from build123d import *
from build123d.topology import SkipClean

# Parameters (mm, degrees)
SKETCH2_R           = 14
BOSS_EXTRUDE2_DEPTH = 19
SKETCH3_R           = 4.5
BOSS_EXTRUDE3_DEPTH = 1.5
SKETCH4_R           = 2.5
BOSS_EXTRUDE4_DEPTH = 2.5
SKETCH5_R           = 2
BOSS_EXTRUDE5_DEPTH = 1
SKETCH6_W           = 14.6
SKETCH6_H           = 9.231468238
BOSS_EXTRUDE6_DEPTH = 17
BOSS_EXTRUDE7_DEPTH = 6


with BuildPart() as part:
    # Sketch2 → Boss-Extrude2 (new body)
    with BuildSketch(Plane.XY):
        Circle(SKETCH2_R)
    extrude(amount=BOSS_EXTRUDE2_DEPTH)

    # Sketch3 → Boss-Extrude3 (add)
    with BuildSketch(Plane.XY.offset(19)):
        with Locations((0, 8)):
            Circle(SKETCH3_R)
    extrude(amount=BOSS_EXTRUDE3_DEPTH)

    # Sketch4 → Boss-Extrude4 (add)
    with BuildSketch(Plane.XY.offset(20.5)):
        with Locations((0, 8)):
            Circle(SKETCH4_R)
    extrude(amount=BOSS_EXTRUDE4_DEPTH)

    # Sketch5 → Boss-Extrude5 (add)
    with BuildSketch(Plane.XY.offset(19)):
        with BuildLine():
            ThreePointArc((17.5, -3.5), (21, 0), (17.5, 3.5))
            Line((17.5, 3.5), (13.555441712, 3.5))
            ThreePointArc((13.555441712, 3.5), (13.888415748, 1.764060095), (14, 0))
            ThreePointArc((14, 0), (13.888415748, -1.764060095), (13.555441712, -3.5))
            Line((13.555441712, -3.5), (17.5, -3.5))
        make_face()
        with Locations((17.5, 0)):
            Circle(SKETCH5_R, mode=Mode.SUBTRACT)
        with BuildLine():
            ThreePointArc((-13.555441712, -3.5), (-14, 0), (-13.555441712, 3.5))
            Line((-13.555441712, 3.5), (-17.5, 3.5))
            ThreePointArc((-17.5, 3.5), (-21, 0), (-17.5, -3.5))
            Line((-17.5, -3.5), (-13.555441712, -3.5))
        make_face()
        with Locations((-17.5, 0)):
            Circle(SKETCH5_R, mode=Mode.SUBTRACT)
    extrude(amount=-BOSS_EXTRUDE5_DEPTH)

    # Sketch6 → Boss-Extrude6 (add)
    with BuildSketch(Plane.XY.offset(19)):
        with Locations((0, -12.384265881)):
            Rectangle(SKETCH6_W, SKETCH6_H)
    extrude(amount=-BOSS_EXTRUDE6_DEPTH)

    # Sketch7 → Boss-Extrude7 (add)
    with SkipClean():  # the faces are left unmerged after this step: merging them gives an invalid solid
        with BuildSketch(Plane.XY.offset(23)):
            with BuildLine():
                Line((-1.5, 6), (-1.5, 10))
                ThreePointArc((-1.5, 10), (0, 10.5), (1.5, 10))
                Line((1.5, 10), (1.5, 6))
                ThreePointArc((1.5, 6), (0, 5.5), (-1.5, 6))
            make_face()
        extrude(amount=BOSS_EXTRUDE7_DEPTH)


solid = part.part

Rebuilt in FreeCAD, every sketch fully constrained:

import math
import FreeCAD as App
import Part
import Sketcher
from FreeCAD import Vector


def add_polygon(sketch, points):
    """Adds a closed chain of lines whose ends are joined by coincident constraints."""
    first, n = sketch.GeometryCount, len(points)
    for a, b in zip(points, points[1:] + points[:1]):
        sketch.addGeometry(Part.LineSegment(App.Vector(*a, 0), App.Vector(*b, 0)), False)
    for i in range(n):
        sketch.addConstraint(Sketcher.Constraint("Coincident", first + i, 2, first + (i + 1) % n, 1))

doc = App.newDocument("Part")
params = doc.addObject("Spreadsheet::Sheet", "Params")
for row, (alias, value) in enumerate([
    ("sketch1_diameter", "28 mm"),
    ("pad1_length", "19 mm"),
    ("sketch2_diameter", "9 mm"),
    ("pad2_length", "1.5 mm"),
    ("sketch3_diameter", "5 mm"),
    ("pad3_length", "2.5 mm"),
    ("sketch4_diameter", "4 mm"),
    ("sketch4_radius", "14 mm"),
    ("sketch4_radius2", "3.5 mm"),
    ("pad4_length", "1 mm"),
    ("sketch5_width", "14.6 mm"),
    ("pad5_length", "17 mm"),
    ("sketch6_radius", "2.5 mm"),
    ("sketch6_height", "4 mm"),
    ("pad6_length", "6 mm"),
], start=1):
    params.set(f"A{row}", alias)
    params.set(f"B{row}", "=" + value)
    params.setAlias(f"B{row}", alias)

body = doc.addObject("PartDesign::Body", "Body")

# Sketch on XY plane
sketch1 = body.newObject("Sketcher::SketchObject", "Sketch")
sketch1.AttachmentSupport = (doc.getObject("XY_Plane"), [""])
sketch1.MapMode = "FlatFace"
sketch1.addGeometry(Part.Circle(Vector(0, 0, 0), Vector(0, 0, 1), 14), False)
sketch1.addConstraint([
    Sketcher.Constraint("Coincident", 0, 3, -1, 1),
    Sketcher.Constraint("Diameter", 0, 28.0),
])
sketch1.setExpression("Constraints[1]", "Params.sketch1_diameter")
pad1 = body.newObject("PartDesign::Pad", "Pad")
pad1.Profile = sketch1
pad1.setExpression("Length", "Params.pad1_length")

# Sketch on XY plane
sketch2 = body.newObject("Sketcher::SketchObject", "Sketch001")
sketch2.AttachmentSupport = (doc.getObject("XY_Plane"), [""])
sketch2.MapMode = "FlatFace"
sketch2.AttachmentOffset = App.Placement(Vector(0, 0, 19), App.Rotation())
sketch2.addGeometry(Part.Circle(Vector(0, 8, 0), Vector(0, 0, 1), 4.5), False)
sketch2.addConstraint([
    Sketcher.Constraint("PointOnObject", 0, 3, -2),
    Sketcher.Constraint("Diameter", 0, 9.0),
    Sketcher.Constraint("DistanceY", -1, 1, 0, 3, 8.0),
])
sketch2.setExpression("Constraints[1]", "Params.sketch2_diameter")
pad2 = body.newObject("PartDesign::Pad", "Pad001")
pad2.Profile = sketch2
pad2.setExpression("Length", "Params.pad2_length")

# Sketch on XY plane
sketch3 = body.newObject("Sketcher::SketchObject", "Sketch002")
sketch3.AttachmentSupport = (doc.getObject("XY_Plane"), [""])
sketch3.MapMode = "FlatFace"
sketch3.AttachmentOffset = App.Placement(Vector(0, 0, 20.5), App.Rotation())
sketch3.addGeometry(Part.Circle(Vector(0, 8, 0), Vector(0, 0, 1), 2.5), False)
sketch3.addConstraint([
    Sketcher.Constraint("PointOnObject", 0, 3, -2),
    Sketcher.Constraint("Diameter", 0, 5.0),
    Sketcher.Constraint("DistanceY", -1, 1, 0, 3, 8.0),
])
sketch3.setExpression("Constraints[1]", "Params.sketch3_diameter")
pad3 = body.newObject("PartDesign::Pad", "Pad002")
pad3.Profile = sketch3
pad3.setExpression("Length", "Params.pad3_length")

# Sketch on XY plane
sketch4 = body.newObject("Sketcher::SketchObject", "Sketch003")
sketch4.AttachmentSupport = (doc.getObject("XY_Plane"), [""])
sketch4.MapMode = "FlatFace"
sketch4.AttachmentOffset = App.Placement(Vector(0, 0, 19), App.Rotation())
sketch4.addGeometry([
    Part.ArcOfCircle(Part.Circle(Vector(17.5, 0, 0), Vector(0, 0, 1), 3.5), math.radians(-90), math.radians(90)),  # 0
    Part.LineSegment(Vector(17.5, 3.5, 0), Vector(13.555442, 3.5, 0)),  # 1
    Part.ArcOfCircle(Part.Circle(Vector(0, 0, 0), Vector(0, 0, 1), 14), math.radians(0), math.radians(14.477512)),  # 2
    Part.ArcOfCircle(Part.Circle(Vector(0, 0, 0), Vector(0, 0, 1), 14), math.radians(-14.477512), math.radians(0)),  # 3
    Part.LineSegment(Vector(13.555442, -3.5, 0), Vector(17.5, -3.5, 0)),  # 4
    Part.Circle(Vector(17.5, 0, 0), Vector(0, 0, 1), 2),  # 5
    Part.ArcOfCircle(Part.Circle(Vector(0, 0, 0), Vector(0, 0, 1), 14), math.radians(165.522488), math.radians(194.477512)),  # 6
    Part.LineSegment(Vector(-13.555442, 3.5, 0), Vector(-17.5, 3.5, 0)),  # 7
    Part.ArcOfCircle(Part.Circle(Vector(-17.5, 0, 0), Vector(0, 0, 1), 3.5), math.radians(90), math.radians(270)),  # 8
    Part.LineSegment(Vector(-17.5, -3.5, 0), Vector(-13.555442, -3.5, 0)),  # 9
    Part.Circle(Vector(-17.5, 0, 0), Vector(0, 0, 1), 2),  # 10
], False)
sketch4.addConstraint([
    Sketcher.Constraint("Tangent", 0, 2, 1, 1),
    Sketcher.Constraint("Coincident", 1, 2, 2, 2),
    Sketcher.Constraint("Tangent", 2, 1, 3, 2),
    Sketcher.Constraint("Coincident", 3, 1, 4, 1),
    Sketcher.Constraint("Tangent", 4, 2, 0, 1),
    Sketcher.Constraint("Coincident", 6, 1, 7, 1),
    Sketcher.Constraint("Tangent", 7, 2, 8, 1),
    Sketcher.Constraint("Tangent", 8, 2, 9, 1),
    Sketcher.Constraint("Coincident", 9, 2, 6, 2),
    Sketcher.Constraint("Horizontal", 1),
    Sketcher.Constraint("Horizontal", 4),
    Sketcher.Constraint("Horizontal", 7),
    Sketcher.Constraint("Horizontal", 9),
    Sketcher.Constraint("Coincident", 2, 3, -1, 1),
    Sketcher.Constraint("Coincident", 6, 3, -1, 1),
    Sketcher.Constraint("Coincident", 5, 3, 0, 3),
    Sketcher.Constraint("Coincident", 10, 3, 8, 3),
    Sketcher.Constraint("Equal", 2, 3),
    Sketcher.Constraint("Equal", 3, 6),
    Sketcher.Constraint("Equal", 0, 8),
    Sketcher.Constraint("Equal", 5, 10),
    Sketcher.Constraint("Symmetric", 0, 3, 8, 3, -1, 1),
    Sketcher.Constraint("PointOnObject", 0, 3, -1),
    Sketcher.Constraint("PointOnObject", 2, 1, -1),
    Sketcher.Constraint("Diameter", 5, 4.0),
    Sketcher.Constraint("Radius", 2, 14.0),
    Sketcher.Constraint("Radius", 0, 3.5),
    Sketcher.Constraint("DistanceX", 8, 3, 0, 3, 35.0),
])
sketch4.setExpression("Constraints[24]", "Params.sketch4_diameter")
sketch4.setExpression("Constraints[25]", "Params.sketch4_radius")
sketch4.setExpression("Constraints[26]", "Params.sketch4_radius2")
pad4 = body.newObject("PartDesign::Pad", "Pad003")
pad4.Profile = sketch4
pad4.setExpression("Length", "Params.pad4_length")
pad4.Reversed = True

# Sketch on XY plane
sketch5 = body.newObject("Sketcher::SketchObject", "Sketch004")
sketch5.AttachmentSupport = (doc.getObject("XY_Plane"), [""])
sketch5.MapMode = "FlatFace"
sketch5.AttachmentOffset = App.Placement(Vector(0, 0, 19), App.Rotation())
add_polygon(sketch5, [(-7.3, -7.768532), (-7.3, -17), (7.3, -17), (7.3, -7.768532)])  # lines 0-3
sketch5.addConstraint([
    Sketcher.Constraint("Vertical", 0),
    Sketcher.Constraint("Horizontal", 1),
    Sketcher.Constraint("Vertical", 2),
    Sketcher.Constraint("Horizontal", 3),
    Sketcher.Constraint("DistanceX", 1, 1, 1, 2, 14.6),
    Sketcher.Constraint("DistanceY", 0, 2, -1, 1, 17.0),
    Sketcher.Constraint("DistanceX", 0, 2, -1, 1, 7.3),
    Sketcher.Constraint("DistanceY", 0, 2, 0, 1, 9.231468),
])
sketch5.setExpression("Constraints[8]", "Params.sketch5_width")
pad5 = body.newObject("PartDesign::Pad", "Pad004")
pad5.Profile = sketch5
pad5.setExpression("Length", "Params.pad5_length")
pad5.Reversed = True

# Sketch on XY plane
sketch6 = body.newObject("Sketcher::SketchObject", "Sketch005")
sketch6.AttachmentSupport = (doc.getObject("XY_Plane"), [""])
sketch6.MapMode = "FlatFace"
sketch6.AttachmentOffset = App.Placement(Vector(0, 0, 23), App.Rotation())
sketch6.addGeometry([
    Part.LineSegment(Vector(-1.5, 10, 0), Vector(-1.5, 6, 0)),
    Part.ArcOfCircle(Part.Circle(Vector(0, 8, 0), Vector(0, 0, 1), 2.5), math.radians(-126.869898), math.radians(-53.130102)),
    Part.LineSegment(Vector(1.5, 6, 0), Vector(1.5, 10, 0)),
    Part.ArcOfCircle(Part.Circle(Vector(0, 8, 0), Vector(0, 0, 1), 2.5), math.radians(53.130102), math.radians(126.869898)),
], False)
sketch6.addConstraint([
    Sketcher.Constraint("Coincident", 0, 2, 1, 1),
    Sketcher.Constraint("Coincident", 1, 2, 2, 1),
    Sketcher.Constraint("Coincident", 2, 2, 3, 1),
    Sketcher.Constraint("Coincident", 3, 2, 0, 1),
    Sketcher.Constraint("Vertical", 0),
    Sketcher.Constraint("Vertical", 2),
    Sketcher.Constraint("Coincident", 3, 3, 1, 3),
    Sketcher.Constraint("Equal", 1, 3),
    Sketcher.Constraint("Symmetric", 0, 2, 1, 2, -2),
    Sketcher.Constraint("Radius", 1, 2.5),
    Sketcher.Constraint("DistanceY", 0, 2, 0, 1, 4.0),
    Sketcher.Constraint("DistanceY", -1, 1, 1, 3, 8.0),
])
sketch6.setExpression("Constraints[9]", "Params.sketch6_radius")
sketch6.setExpression("Constraints[10]", "Params.sketch6_height")
pad6 = body.newObject("PartDesign::Pad", "Pad005")
pad6.Profile = sketch6
pad6.setExpression("Length", "Params.pad6_length")

doc.recompute()
